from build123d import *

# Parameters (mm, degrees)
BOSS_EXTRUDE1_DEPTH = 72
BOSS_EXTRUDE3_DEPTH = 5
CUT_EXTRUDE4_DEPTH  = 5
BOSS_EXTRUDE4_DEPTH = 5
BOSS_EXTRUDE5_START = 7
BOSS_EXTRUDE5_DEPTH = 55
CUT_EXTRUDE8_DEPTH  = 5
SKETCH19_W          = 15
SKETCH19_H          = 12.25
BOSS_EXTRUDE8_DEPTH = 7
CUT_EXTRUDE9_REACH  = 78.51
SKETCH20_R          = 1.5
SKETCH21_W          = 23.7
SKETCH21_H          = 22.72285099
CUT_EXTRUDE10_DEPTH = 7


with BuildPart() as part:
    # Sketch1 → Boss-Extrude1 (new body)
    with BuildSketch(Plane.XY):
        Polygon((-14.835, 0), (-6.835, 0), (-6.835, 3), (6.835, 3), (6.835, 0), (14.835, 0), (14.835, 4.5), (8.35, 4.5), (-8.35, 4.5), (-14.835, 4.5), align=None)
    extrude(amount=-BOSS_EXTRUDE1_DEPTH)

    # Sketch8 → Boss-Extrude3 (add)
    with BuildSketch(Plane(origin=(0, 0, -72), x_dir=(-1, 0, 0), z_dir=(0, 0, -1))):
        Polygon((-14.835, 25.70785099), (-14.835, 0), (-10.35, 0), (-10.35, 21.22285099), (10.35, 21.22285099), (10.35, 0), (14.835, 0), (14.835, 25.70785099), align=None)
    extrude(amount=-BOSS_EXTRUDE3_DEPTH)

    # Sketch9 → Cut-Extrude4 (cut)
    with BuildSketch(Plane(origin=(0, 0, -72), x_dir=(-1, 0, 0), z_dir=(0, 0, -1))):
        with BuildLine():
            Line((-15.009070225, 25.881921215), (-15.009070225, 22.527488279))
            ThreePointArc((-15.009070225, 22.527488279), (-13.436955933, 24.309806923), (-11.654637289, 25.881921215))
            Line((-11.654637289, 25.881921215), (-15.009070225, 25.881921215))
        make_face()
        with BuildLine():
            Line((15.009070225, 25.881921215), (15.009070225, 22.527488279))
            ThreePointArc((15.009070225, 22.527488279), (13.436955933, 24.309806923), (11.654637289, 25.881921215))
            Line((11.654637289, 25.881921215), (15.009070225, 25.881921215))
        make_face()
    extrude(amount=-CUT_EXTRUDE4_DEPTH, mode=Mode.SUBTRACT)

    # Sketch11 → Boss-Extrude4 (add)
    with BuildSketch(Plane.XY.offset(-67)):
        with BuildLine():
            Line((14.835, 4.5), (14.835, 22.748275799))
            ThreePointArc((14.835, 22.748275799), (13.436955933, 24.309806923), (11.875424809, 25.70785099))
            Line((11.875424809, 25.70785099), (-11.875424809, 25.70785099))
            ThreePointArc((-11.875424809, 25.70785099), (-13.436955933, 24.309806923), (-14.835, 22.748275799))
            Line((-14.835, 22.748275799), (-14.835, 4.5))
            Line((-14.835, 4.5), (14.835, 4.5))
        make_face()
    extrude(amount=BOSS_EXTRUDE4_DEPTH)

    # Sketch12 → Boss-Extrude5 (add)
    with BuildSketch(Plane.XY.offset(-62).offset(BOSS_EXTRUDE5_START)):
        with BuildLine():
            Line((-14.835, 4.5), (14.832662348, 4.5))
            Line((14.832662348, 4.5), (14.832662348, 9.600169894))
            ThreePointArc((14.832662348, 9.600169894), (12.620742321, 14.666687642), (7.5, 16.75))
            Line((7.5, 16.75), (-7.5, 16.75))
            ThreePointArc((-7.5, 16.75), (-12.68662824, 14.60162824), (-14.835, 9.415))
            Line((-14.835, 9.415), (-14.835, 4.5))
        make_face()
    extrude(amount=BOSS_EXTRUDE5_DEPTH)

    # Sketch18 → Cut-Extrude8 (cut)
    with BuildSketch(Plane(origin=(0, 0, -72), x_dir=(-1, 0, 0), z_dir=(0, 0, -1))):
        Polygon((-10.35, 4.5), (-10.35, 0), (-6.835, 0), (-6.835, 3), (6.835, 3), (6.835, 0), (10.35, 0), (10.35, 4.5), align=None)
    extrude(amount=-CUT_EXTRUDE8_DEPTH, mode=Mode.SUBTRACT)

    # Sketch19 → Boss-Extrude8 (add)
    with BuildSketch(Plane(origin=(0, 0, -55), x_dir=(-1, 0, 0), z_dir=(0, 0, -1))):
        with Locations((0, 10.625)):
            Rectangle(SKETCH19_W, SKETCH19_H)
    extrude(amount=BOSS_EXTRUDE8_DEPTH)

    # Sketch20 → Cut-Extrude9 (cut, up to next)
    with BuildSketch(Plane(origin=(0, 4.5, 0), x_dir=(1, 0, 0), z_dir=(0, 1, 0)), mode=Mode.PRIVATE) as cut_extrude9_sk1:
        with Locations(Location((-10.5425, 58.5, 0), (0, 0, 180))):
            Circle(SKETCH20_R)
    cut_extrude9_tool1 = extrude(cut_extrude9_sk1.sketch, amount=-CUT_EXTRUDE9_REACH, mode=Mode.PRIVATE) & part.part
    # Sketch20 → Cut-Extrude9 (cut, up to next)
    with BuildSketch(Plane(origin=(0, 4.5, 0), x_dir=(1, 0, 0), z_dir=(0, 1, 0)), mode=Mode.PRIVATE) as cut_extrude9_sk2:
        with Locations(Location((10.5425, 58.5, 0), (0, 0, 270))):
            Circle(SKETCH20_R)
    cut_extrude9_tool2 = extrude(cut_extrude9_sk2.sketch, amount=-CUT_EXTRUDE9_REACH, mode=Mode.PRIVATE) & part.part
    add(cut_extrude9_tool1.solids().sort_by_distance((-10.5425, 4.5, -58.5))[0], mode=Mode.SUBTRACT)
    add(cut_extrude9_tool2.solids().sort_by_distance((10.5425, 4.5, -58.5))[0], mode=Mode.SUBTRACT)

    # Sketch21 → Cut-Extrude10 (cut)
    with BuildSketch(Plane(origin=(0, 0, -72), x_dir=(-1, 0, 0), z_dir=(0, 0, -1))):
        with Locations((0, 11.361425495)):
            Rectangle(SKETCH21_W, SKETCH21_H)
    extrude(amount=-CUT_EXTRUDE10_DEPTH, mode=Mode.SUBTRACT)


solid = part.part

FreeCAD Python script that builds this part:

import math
import FreeCAD as App
import Part
import Sketcher

doc = App.newDocument("Part")
params = doc.addObject("Spreadsheet::Sheet", "Params")
for row, (alias, value) in enumerate([
    ("sketch1_width", "8 mm"),
    ("sketch1_height", "3 mm"),
    ("sketch1_height2", "4.5 mm"),
    ("sketch1_width2", "13.67 mm"),
    ("pad1_length", "72 mm"),
    ("sketch2_width", "20.7 mm"),
    ("sketch2_width2", "29.67 mm"),
    ("pad2_length", "5 mm"),
    ("sketch3_radius", "19 mm"),
    ("pocket1_length", "5 mm"),
    ("sketch4_radius", "19 mm"),
    ("sketch4_width", "29.67 mm"),
    ("pad3_length", "5 mm"),
    ("sketch5_width", "15 mm"),
    ("pad4_length", "55 mm"),
    ("sketch6_height", "3 mm"),
    ("sketch6_width", "20.7 mm"),
    ("sketch6_height2", "4.5 mm"),
    ("sketch6_width2", "13.67 mm"),
    ("pocket2_length", "5 mm"),
    ("sketch7_width", "15 mm"),
    ("sketch7_height", "12.25 mm"),
    ("pad5_length", "7 mm"),
    ("sketch8_diameter", "3 mm"),
    ("sketch9_diameter", "3 mm"),
    ("sketch10_width", "23.7 mm"),
    ("pocket5_length", "7 mm"),
], start=1):
    params.set(f"A{row}", alias)
    params.set(f"B{row}", "=" + value)
    params.setAlias(f"B{row}", alias)

body = doc.addObject("PartDesign::Body", "Body")

# Sketch on XY plane
sketch1 = body.newObject("Sketcher::SketchObject", "Sketch")
sketch1.AttachmentSupport = (doc.getObject("XY_Plane"), [""])
sketch1.MapMode = "FlatFace"
sketch1.addGeometry([
    Part.LineSegment(App.Vector(-14.8, 0, 0), App.Vector(-6.8, 0, 0)),  # 0
    Part.LineSegment(App.Vector(-6.8, 0, 0), App.Vector(-6.8, 3, 0)),  # 1
    Part.LineSegment(App.Vector(-6.8, 3, 0), App.Vector(6.8, 3, 0)),  # 2
    Part.LineSegment(App.Vector(6.8, 3, 0), App.Vector(6.8, 0, 0)),  # 3
    Part.LineSegment(App.Vector(6.8, 0, 0), App.Vector(14.8, 0, 0)),  # 4
    Part.LineSegment(App.Vector(14.8, 0, 0), App.Vector(14.8, 4.5, 0)),  # 5
    Part.LineSegment(App.Vector(14.8, 4.5, 0), App.Vector(-14.8, 4.5, 0)),  # 6
    Part.LineSegment(App.Vector(-14.8, 4.5, 0), App.Vector(-14.8, 0, 0)),  # 7
], False)
sketch1.addConstraint([
    Sketcher.Constraint("Coincident", 0, 2, 1, 1),
    Sketcher.Constraint("Coincident", 1, 2, 2, 1),
    Sketcher.Constraint("Coincident", 2, 2, 3, 1),
    Sketcher.Constraint("Coincident", 3, 2, 4, 1),
    Sketcher.Constraint("Coincident", 4, 2, 5, 1),
    Sketcher.Constraint("Coincident", 5, 2, 6, 1),
    Sketcher.Constraint("Coincident", 6, 2, 7, 1),
    Sketcher.Constraint("Coincident", 7, 2, 0, 1),
    Sketcher.Constraint("Horizontal", 0),
    Sketcher.Constraint("Vertical", 1),
    Sketcher.Constraint("Horizontal", 2),
    Sketcher.Constraint("Vertical", 3),
    Sketcher.Constraint("Horizontal", 4),
    Sketcher.Constraint("Vertical", 5),
    Sketcher.Constraint("Horizontal", 6),
    Sketcher.Constraint("Vertical", 7),
    Sketcher.Constraint("Symmetric", 0, 2, 3, 2, -1, 1),
    Sketcher.Constraint("Symmetric", 4, 2, 7, 2, -2),
    Sketcher.Constraint("DistanceX", 0, 1, 0, 2, 8.0),
    Sketcher.Constraint("DistanceY", 1, 1, 1, 2, 3.0),
    Sketcher.Constraint("DistanceY", 5, 1, 5, 2, 4.5),
    Sketcher.Constraint("DistanceX", 2, 1, 2, 2, 13.67),
])
sketch1.setExpression("Constraints[18]", "Params.sketch1_width")
sketch1.setExpression("Constraints[19]", "Params.sketch1_height")
sketch1.setExpression("Constraints[20]", "Params.sketch1_height2")
sketch1.setExpression("Constraints[21]", "Params.sketch1_width2")
pad1 = body.newObject("PartDesign::Pad", "Pad")
pad1.Profile = sketch1
pad1.setExpression("Length", "Params.pad1_length")
pad1.Reversed = True

# Sketch on XY plane
sketch2 = body.newObject("Sketcher::SketchObject", "Sketch001")
sketch2.AttachmentSupport = (doc.getObject("XY_Plane"), [""])
sketch2.MapMode = "FlatFace"
sketch2.AttachmentOffset = App.Placement(App.Vector(0, 0, -72), App.Rotation())
sketch2.addGeometry([
    Part.LineSegment(App.Vector(14.8, 25.7, 0), App.Vector(14.8, 0, 0)),  # 0
    Part.LineSegment(App.Vector(14.8, 0, 0), App.Vector(10.3, 0, 0)),  # 1
    Part.LineSegment(App.Vector(10.3, 0, 0), App.Vector(10.3, 21.2, 0)),  # 2
    Part.LineSegment(App.Vector(10.3, 21.2, 0), App.Vector(-10.3, 21.2, 0)),  # 3
    Part.LineSegment(App.Vector(-10.3, 21.2, 0), App.Vector(-10.3, 0, 0)),  # 4
    Part.LineSegment(App.Vector(-10.3, 0, 0), App.Vector(-14.8, 0, 0)),  # 5
    Part.LineSegment(App.Vector(-14.8, 0, 0), App.Vector(-14.8, 25.7, 0)),  # 6
    Part.LineSegment(App.Vector(-14.8, 25.7, 0), App.Vector(14.8, 25.7, 0)),  # 7
], False)
sketch2.addConstraint([
    Sketcher.Constraint("Coincident", 0, 2, 1, 1),
    Sketcher.Constraint("Coincident", 1, 2, 2, 1),
    Sketcher.Constraint("Coincident", 2, 2, 3, 1),
    Sketcher.Constraint("Coincident", 3, 2, 4, 1),
    Sketcher.Constraint("Coincident", 4, 2, 5, 1),
    Sketcher.Constraint("Coincident", 5, 2, 6, 1),
    Sketcher.Constraint("Coincident", 6, 2, 7, 1),
    Sketcher.Constraint("Coincident", 7, 2, 0, 1),
    Sketcher.Constraint("Vertical", 0),
    Sketcher.Constraint("Horizontal", 1),
    Sketcher.Constraint("Vertical", 2),
    Sketcher.Constraint("Horizontal", 3),
    Sketcher.Constraint("Vertical", 4),
    Sketcher.Constraint("Horizontal", 5),
    Sketcher.Constraint("Vertical", 6),
    Sketcher.Constraint("Horizontal", 7),
    Sketcher.Constraint("Symmetric", 1, 2, 4, 2, -1, 1),
    Sketcher.Constraint("Symmetric", 0, 2, 5, 2, -2),
    Sketcher.Constraint("DistanceX", 3, 2, 3, 1, 20.7),
    Sketcher.Constraint("DistanceX", 7, 1, 7, 2, 29.67),
    Sketcher.Constraint("DistanceY", 3, 2, 6, 2, 4.485),
    Sketcher.Constraint("DistanceY", 0, 2, 0, 1, 25.707851),
])
sketch2.setExpression("Constraints[18]", "Params.sketch2_width")
sketch2.setExpression("Constraints[19]", "Params.sketch2_width2")
pad2 = body.newObject("PartDesign::Pad", "Pad001")
pad2.Profile = sketch2
pad2.setExpression("Length", "Params.pad2_length")

# Sketch on XY plane
sketch3 = body.newObject("Sketcher::SketchObject", "Sketch002")
sketch3.AttachmentSupport = (doc.getObject("XY_Plane"), [""])
sketch3.MapMode = "FlatFace"
sketch3.AttachmentOffset = App.Placement(App.Vector(0, 0, -72), App.Rotation())
sketch3.addGeometry([
    Part.LineSegment(App.Vector(15.00907, 25.881921, 0), App.Vector(15.00907, 22.527488, 0)),  # 0
    Part.ArcOfCircle(Part.Circle(App.Vector(0.001927, 10.874778, 0), App.Vector(0, 0, 1), 19), math.radians(37.828538), math.radians(52.171462)),  # 1
    Part.LineSegment(App.Vector(11.654637, 25.881921, 0), App.Vector(15.00907, 25.881921, 0)),  # 2
    Part.LineSegment(App.Vector(-15.00907, 22.527488, 0), App.Vector(-15.00907, 25.881921, 0)),  # 3
    Part.LineSegment(App.Vector(-15.00907, 25.881921, 0), App.Vector(-11.654637, 25.881921, 0)),  # 4
    Part.ArcOfCircle(Part.Circle(App.Vector(-0.001927, 10.874778, 0), App.Vector(0, 0, 1), 19), math.radians(127.828538), math.radians(142.171462)),  # 5
], False)
sketch3.addConstraint([
    Sketcher.Constraint("Coincident", 0, 2, 1, 1),
    Sketcher.Constraint("Coincident", 1, 2, 2, 1),
    Sketcher.Constraint("Coincident", 2, 2, 0, 1),
    Sketcher.Constraint("Coincident", 3, 2, 4, 1),
    Sketcher.Constraint("Coincident", 4, 2, 5, 1),
    Sketcher.Constraint("Coincident", 5, 2, 3, 1),
    Sketcher.Constraint("Vertical", 0),
    Sketcher.Constraint("Horizontal", 2),
    Sketcher.Constraint("Vertical", 3),
    Sketcher.Constraint("Horizontal", 4),
    Sketcher.Constraint("Equal", 1, 5),
    Sketcher.Constraint("Symmetric", 1, 3, 5, 3, -2),
    Sketcher.Constraint("Symmetric", 2, 2, 3, 2, -2),
    Sketcher.Constraint("Equal", 4, 0),
    Sketcher.Constraint("Radius", 1, 19.0),
    Sketcher.Constraint("DistanceX", 2, 1, 2, 2, 3.354433),
    Sketcher.Constraint("DistanceY", -1, 1, 1, 3, 10.874778),
    Sketcher.Constraint("DistanceX", -1, 1, 0, 2, 15.00907),
])
sketch3.setExpression("Constraints[14]", "Params.sketch3_radius")
pocket1 = body.newObject("PartDesign::Pocket", "Pocket")
pocket1.Profile = sketch3
pocket1.setExpression("Length", "Params.pocket1_length")
pocket1.Reversed = True

# Sketch on XY plane
sketch4 = body.newObject("Sketcher::SketchObject", "Sketch003")
sketch4.AttachmentSupport = (doc.getObject("XY_Plane"), [""])
sketch4.MapMode = "FlatFace"
sketch4.AttachmentOffset = App.Placement(App.Vector(0, 0, -67), App.Rotation())
sketch4.addGeometry([
    Part.LineSegment(App.Vector(14.835, 4.5, 0), App.Vector(14.835, 22.748276, 0)),  # 0
    Part.ArcOfCircle(Part.Circle(App.Vector(0.001927, 10.874778, 0), App.Vector(0, 0, 1), 19), math.radians(38.676384), math.radians(51.323616)),  # 1
    Part.LineSegment(App.Vector(11.875425, 25.707851, 0), App.Vector(-11.875425, 25.707851, 0)),  # 2
    Part.ArcOfCircle(Part.Circle(App.Vector(-0.001927, 10.874778, 0), App.Vector(0, 0, 1), 19), math.radians(128.676384), math.radians(141.323616)),  # 3
    Part.LineSegment(App.Vector(-14.835, 22.748276, 0), App.Vector(-14.835, 4.5, 0)),  # 4
    Part.LineSegment(App.Vector(-14.835, 4.5, 0), App.Vector(14.835, 4.5, 0)),  # 5
], False)
sketch4.addConstraint([
    Sketcher.Constraint("Coincident", 0, 2, 1, 1),
    Sketcher.Constraint("Coincident", 1, 2, 2, 1),
    Sketcher.Constraint("Coincident", 2, 2, 3, 1),
    Sketcher.Constraint("Coincident", 3, 2, 4, 1),
    Sketcher.Constraint("Coincident", 4, 2, 5, 1),
    Sketcher.Constraint("Coincident", 5, 2, 0, 1),
    Sketcher.Constraint("Vertical", 0),
    Sketcher.Constraint("Horizontal", 2),
    Sketcher.Constraint("Vertical", 4),
    Sketcher.Constraint("Horizontal", 5),
    Sketcher.Constraint("Equal", 1, 3),
    Sketcher.Constraint("Symmetric", 1, 3, 3, 3, -2),
    Sketcher.Constraint("Horizontal", 0, 2, 3, 2),
    Sketcher.Constraint("Radius", 1, 19.0),
    Sketcher.Constraint("DistanceX", 5, 1, 5, 2, 29.67),
    Sketcher.Constraint("DistanceY", -1, 1, 4, 2, 4.5),
    Sketcher.Constraint("DistanceX", 2, 2, 2, 1, 23.75085),
    Sketcher.Constraint("DistanceY", 0, 1, 0, 2, 18.248276),
    Sketcher.Constraint("DistanceY", -1, 1, 1, 3, 10.874778),
])
sketch4.setExpression("Constraints[13]", "Params.sketch4_radius")
sketch4.setExpression("Constraints[14]", "Params.sketch4_width")
pad3 = body.newObject("PartDesign::Pad", "Pad002")
pad3.Profile = sketch4
pad3.setExpression("Length", "Params.pad3_length")

# Sketch on XY plane
sketch5 = body.newObject("Sketcher::SketchObject", "Sketch004")
sketch5.AttachmentSupport = (doc.getObject("XY_Plane"), [""])
sketch5.MapMode = "FlatFace"
sketch5.AttachmentOffset = App.Placement(App.Vector(0, 0, -55), App.Rotation())
sketch5.addGeometry([
    Part.LineSegment(App.Vector(-14.8, 4.5, 0), App.Vector(14.8, 4.5, 0)),  # 0
    Part.LineSegment(App.Vector(14.8, 4.5, 0), App.Vector(14.8, 9.6, 0)),  # 1
    Part.ArcOfCircle(Part.Circle(App.Vector(7.5, 9.4, 0), App.Vector(0, 0, 1), 7.3), math.radians(1), math.radians(90)),  # 2
    Part.LineSegment(App.Vector(7.5, 16.8, 0), App.Vector(-7.5, 16.8, 0)),  # 3
    Part.ArcOfCircle(Part.Circle(App.Vector(-7.5, 9.4, 0), App.Vector(0, 0, 1), 7.3), math.radians(90), math.radians(180)),  # 4
    Part.LineSegment(App.Vector(-14.8, 9.4, 0), App.Vector(-14.8, 4.5, 0)),  # 5
], False)
sketch5.addConstraint([
    Sketcher.Constraint("Coincident", 0, 2, 1, 1),
    Sketcher.Constraint("Coincident", 1, 2, 2, 1),
    Sketcher.Constraint("Tangent", 2, 2, 3, 1),
    Sketcher.Constraint("Tangent", 3, 2, 4, 1),
    Sketcher.Constraint("Tangent", 4, 2, 5, 1),
    Sketcher.Constraint("Coincident", 5, 2, 0, 1),
    Sketcher.Constraint("Horizontal", 0),
    Sketcher.Constraint("Vertical", 1),
    Sketcher.Constraint("Horizontal", 3),
    Sketcher.Constraint("Vertical", 5),
    Sketcher.Constraint("Equal", 2, 4),
    Sketcher.Constraint("DistanceX", 3, 2, 3, 1, 15.0),
    Sketcher.Constraint("Radius", 2, 7.335),
    Sketcher.Constraint("DistanceX", -1, 1, 2, 3, 7.5),
    Sketcher.Constraint("DistanceY", -1, 1, 0, 2, 4.5),
    Sketcher.Constraint("DistanceY", 5, 2, 5, 1, 4.915),
    Sketcher.Constraint("DistanceY", 1, 1, 1, 2, 5.10017),
])
sketch5.setExpression("Constraints[11]", "Params.sketch5_width")
pad4 = body.newObject("PartDesign::Pad", "Pad003")
pad4.Profile = sketch5
pad4.setExpression("Length", "Params.pad4_length")

# Sketch on XY plane
sketch6 = body.newObject("Sketcher::SketchObject", "Sketch005")
sketch6.AttachmentSupport = (doc.getObject("XY_Plane"), [""])
sketch6.MapMode = "FlatFace"
sketch6.AttachmentOffset = App.Placement(App.Vector(0, 0, -72), App.Rotation())
sketch6.addGeometry([
    Part.LineSegment(App.Vector(10.3, 4.5, 0), App.Vector(10.3, 0, 0)),  # 0
    Part.LineSegment(App.Vector(10.3, 0, 0), App.Vector(6.8, 0, 0)),  # 1
    Part.LineSegment(App.Vector(6.8, 0, 0), App.Vector(6.8, 3, 0)),  # 2
    Part.LineSegment(App.Vector(6.8, 3, 0), App.Vector(-6.8, 3, 0)),  # 3
    Part.LineSegment(App.Vector(-6.8, 3, 0), App.Vector(-6.8, 0, 0)),  # 4
    Part.LineSegment(App.Vector(-6.8, 0, 0), App.Vector(-10.3, 0, 0)),  # 5
    Part.LineSegment(App.Vector(-10.3, 0, 0), App.Vector(-10.3, 4.5, 0)),  # 6
    Part.LineSegment(App.Vector(-10.3, 4.5, 0), App.Vector(10.3, 4.5, 0)),  # 7
], False)
sketch6.addConstraint([
    Sketcher.Constraint("Coincident", 0, 2, 1, 1),
    Sketcher.Constraint("Coincident", 1, 2, 2, 1),
    Sketcher.Constraint("Coincident", 2, 2, 3, 1),
    Sketcher.Constraint("Coincident", 3, 2, 4, 1),
    Sketcher.Constraint("Coincident", 4, 2, 5, 1),
    Sketcher.Constraint("Coincident", 5, 2, 6, 1),
    Sketcher.Constraint("Coincident", 6, 2, 7, 1),
    Sketcher.Constraint("Coincident", 7, 2, 0, 1),
    Sketcher.Constraint("Vertical", 0),
    Sketcher.Constraint("Horizontal", 1),
    Sketcher.Constraint("Vertical", 2),
    Sketcher.Constraint("Horizontal", 3),
    Sketcher.Constraint("Vertical", 4),
    Sketcher.Constraint("Horizontal", 5),
    Sketcher.Constraint("Vertical", 6),
    Sketcher.Constraint("Horizontal", 7),
    Sketcher.Constraint("Symmetric", 1, 2, 4, 2, -1, 1),
    Sketcher.Constraint("Symmetric", 0, 2, 5, 2, -2),
    Sketcher.Constraint("DistanceY", 2, 1, 2, 2, 3.0),
    Sketcher.Constraint("DistanceX", 7, 1, 7, 2, 20.7),
    Sketcher.Constraint("DistanceY", 0, 2, 0, 1, 4.5),
    Sketcher.Constraint("DistanceX", 3, 2, 3, 1, 13.67),
])
sketch6.setExpression("Constraints[18]", "Params.sketch6_height")
sketch6.setExpression("Constraints[19]", "Params.sketch6_width")
sketch6.setExpression("Constraints[20]", "Params.sketch6_height2")
sketch6.setExpression("Constraints[21]", "Params.sketch6_width2")
pocket2 = body.newObject("PartDesign::Pocket", "Pocket001")
pocket2.Profile = sketch6
pocket2.setExpression("Length", "Params.pocket2_length")
pocket2.Reversed = True

# Sketch on XY plane
sketch7 = body.newObject("Sketcher::SketchObject", "Sketch006")
sketch7.AttachmentSupport = (doc.getObject("XY_Plane"), [""])
sketch7.MapMode = "FlatFace"
sketch7.AttachmentOffset = App.Placement(App.Vector(0, 0, -55), App.Rotation())
sketch7.addGeometry([
    Part.LineSegment(App.Vector(8, 17, 0), App.Vector(8, 4, 0)),
    Part.LineSegment(App.Vector(8, 4, 0), App.Vector(-8, 4, 0)),
    Part.LineSegment(App.Vector(-8, 4, 0), App.Vector(-8, 17, 0)),
    Part.LineSegment(App.Vector(-8, 17, 0), App.Vector(8, 17, 0)),
], False)
sketch7.addConstraint([
    Sketcher.Constraint("Coincident", 0, 2, 1, 1),
    Sketcher.Constraint("Coincident", 1, 2, 2, 1),
    Sketcher.Constraint("Coincident", 2, 2, 3, 1),
    Sketcher.Constraint("Coincident", 3, 2, 0, 1),
    Sketcher.Constraint("Vertical", 0),
    Sketcher.Constraint("Horizontal", 1),
    Sketcher.Constraint("Vertical", 2),
    Sketcher.Constraint("Horizontal", 3),
    Sketcher.Constraint("DistanceX", 1, 2, 1, 1, 15.0),
    Sketcher.Constraint("DistanceY", 0, 2, 0, 1, 12.25),
    Sketcher.Constraint("DistanceX", -1, 1, 0, 2, 7.5),
    Sketcher.Constraint("DistanceY", -1, 1, 0, 2, 4.5),
])
sketch7.setExpression("Constraints[8]", "Params.sketch7_width")
sketch7.setExpression("Constraints[9]", "Params.sketch7_height")
pad5 = body.newObject("PartDesign::Pad", "Pad004")
pad5.Profile = sketch7
pad5.setExpression("Length", "Params.pad5_length")
pad5.Reversed = True

# Sketch on XZ plane
sketch8 = body.newObject("Sketcher::SketchObject", "Sketch007")
sketch8.AttachmentSupport = (doc.getObject("XZ_Plane"), [""])
sketch8.MapMode = "FlatFace"
sketch8.AttachmentOffset = App.Placement(App.Vector(0, 0, -4.5), App.Rotation())
sketch8.addGeometry(Part.Circle(App.Vector(-10.5, -58.5, 0), App.Vector(0, 0, 1), 1.5), False)
sketch8.addConstraint([
    Sketcher.Constraint("Diameter", 0, 3.0),
    Sketcher.Constraint("DistanceY", 0, 3, -1, 1, 58.5),
    Sketcher.Constraint("DistanceX", 0, 3, -1, 1, 10.5425),
])
sketch8.setExpression("Constraints[0]", "Params.sketch8_diameter")
pocket3 = body.newObject("PartDesign::Pocket", "Pocket002")
pocket3.Profile = sketch8
pocket3.Type = "UpToFirst"
pocket3.Reversed = True

# Sketch on XZ plane
sketch9 = body.newObject("Sketcher::SketchObject", "Sketch008")
sketch9.AttachmentSupport = (doc.getObject("XZ_Plane"), [""])
sketch9.MapMode = "FlatFace"
sketch9.AttachmentOffset = App.Placement(App.Vector(0, 0, -4.5), App.Rotation())
sketch9.addGeometry(Part.Circle(App.Vector(10.5, -58.5, 0), App.Vector(0, 0, 1), 1.5), False)
sketch9.addConstraint([
    Sketcher.Constraint("Diameter", 0, 3.0),
    Sketcher.Constraint("DistanceY", 0, 3, -1, 1, 58.5),
    Sketcher.Constraint("DistanceX", -1, 1, 0, 3, 10.5425),
])
sketch9.setExpression("Constraints[0]", "Params.sketch9_diameter")
pocket4 = body.newObject("PartDesign::Pocket", "Pocket003")
pocket4.Profile = sketch9
pocket4.Type = "UpToFirst"
pocket4.Reversed = True

# Sketch on XY plane
sketch10 = body.newObject("Sketcher::SketchObject", "Sketch009")
sketch10.AttachmentSupport = (doc.getObject("XY_Plane"), [""])
sketch10.MapMode = "FlatFace"
sketch10.AttachmentOffset = App.Placement(App.Vector(0, 0, -72), App.Rotation())
sketch10.addGeometry([
    Part.LineSegment(App.Vector(12, 23, 0), App.Vector(12, 0, 0)),
    Part.LineSegment(App.Vector(12, 0, 0), App.Vector(-12, 0, 0)),
    Part.LineSegment(App.Vector(-12, 0, 0), App.Vector(-12, 23, 0)),
    Part.LineSegment(App.Vector(-12, 23, 0), App.Vector(12, 23, 0)),
], False)
sketch10.addConstraint([
    Sketcher.Constraint("Coincident", 0, 2, 1, 1),
    Sketcher.Constraint("Coincident", 1, 2, 2, 1),
    Sketcher.Constraint("Coincident", 2, 2, 3, 1),
    Sketcher.Constraint("Coincident", 3, 2, 0, 1),
    Sketcher.Constraint("Vertical", 0),
    Sketcher.Constraint("Horizontal", 1),
    Sketcher.Constraint("Vertical", 2),
    Sketcher.Constraint("Horizontal", 3),
    Sketcher.Constraint("Symmetric", 0, 2, 1, 2, -1, 1),
    Sketcher.Constraint("DistanceX", 1, 2, 1, 1, 23.7),
    Sketcher.Constraint("DistanceY", 0, 2, 0, 1, 22.722851),
])
sketch10.setExpression("Constraints[9]", "Params.sketch10_width")
pocket5 = body.newObject("PartDesign::Pocket", "Pocket004")
pocket5.Profile = sketch10
pocket5.setExpression("Length", "Params.pocket5_length")
pocket5.Reversed = True

doc.recompute()
